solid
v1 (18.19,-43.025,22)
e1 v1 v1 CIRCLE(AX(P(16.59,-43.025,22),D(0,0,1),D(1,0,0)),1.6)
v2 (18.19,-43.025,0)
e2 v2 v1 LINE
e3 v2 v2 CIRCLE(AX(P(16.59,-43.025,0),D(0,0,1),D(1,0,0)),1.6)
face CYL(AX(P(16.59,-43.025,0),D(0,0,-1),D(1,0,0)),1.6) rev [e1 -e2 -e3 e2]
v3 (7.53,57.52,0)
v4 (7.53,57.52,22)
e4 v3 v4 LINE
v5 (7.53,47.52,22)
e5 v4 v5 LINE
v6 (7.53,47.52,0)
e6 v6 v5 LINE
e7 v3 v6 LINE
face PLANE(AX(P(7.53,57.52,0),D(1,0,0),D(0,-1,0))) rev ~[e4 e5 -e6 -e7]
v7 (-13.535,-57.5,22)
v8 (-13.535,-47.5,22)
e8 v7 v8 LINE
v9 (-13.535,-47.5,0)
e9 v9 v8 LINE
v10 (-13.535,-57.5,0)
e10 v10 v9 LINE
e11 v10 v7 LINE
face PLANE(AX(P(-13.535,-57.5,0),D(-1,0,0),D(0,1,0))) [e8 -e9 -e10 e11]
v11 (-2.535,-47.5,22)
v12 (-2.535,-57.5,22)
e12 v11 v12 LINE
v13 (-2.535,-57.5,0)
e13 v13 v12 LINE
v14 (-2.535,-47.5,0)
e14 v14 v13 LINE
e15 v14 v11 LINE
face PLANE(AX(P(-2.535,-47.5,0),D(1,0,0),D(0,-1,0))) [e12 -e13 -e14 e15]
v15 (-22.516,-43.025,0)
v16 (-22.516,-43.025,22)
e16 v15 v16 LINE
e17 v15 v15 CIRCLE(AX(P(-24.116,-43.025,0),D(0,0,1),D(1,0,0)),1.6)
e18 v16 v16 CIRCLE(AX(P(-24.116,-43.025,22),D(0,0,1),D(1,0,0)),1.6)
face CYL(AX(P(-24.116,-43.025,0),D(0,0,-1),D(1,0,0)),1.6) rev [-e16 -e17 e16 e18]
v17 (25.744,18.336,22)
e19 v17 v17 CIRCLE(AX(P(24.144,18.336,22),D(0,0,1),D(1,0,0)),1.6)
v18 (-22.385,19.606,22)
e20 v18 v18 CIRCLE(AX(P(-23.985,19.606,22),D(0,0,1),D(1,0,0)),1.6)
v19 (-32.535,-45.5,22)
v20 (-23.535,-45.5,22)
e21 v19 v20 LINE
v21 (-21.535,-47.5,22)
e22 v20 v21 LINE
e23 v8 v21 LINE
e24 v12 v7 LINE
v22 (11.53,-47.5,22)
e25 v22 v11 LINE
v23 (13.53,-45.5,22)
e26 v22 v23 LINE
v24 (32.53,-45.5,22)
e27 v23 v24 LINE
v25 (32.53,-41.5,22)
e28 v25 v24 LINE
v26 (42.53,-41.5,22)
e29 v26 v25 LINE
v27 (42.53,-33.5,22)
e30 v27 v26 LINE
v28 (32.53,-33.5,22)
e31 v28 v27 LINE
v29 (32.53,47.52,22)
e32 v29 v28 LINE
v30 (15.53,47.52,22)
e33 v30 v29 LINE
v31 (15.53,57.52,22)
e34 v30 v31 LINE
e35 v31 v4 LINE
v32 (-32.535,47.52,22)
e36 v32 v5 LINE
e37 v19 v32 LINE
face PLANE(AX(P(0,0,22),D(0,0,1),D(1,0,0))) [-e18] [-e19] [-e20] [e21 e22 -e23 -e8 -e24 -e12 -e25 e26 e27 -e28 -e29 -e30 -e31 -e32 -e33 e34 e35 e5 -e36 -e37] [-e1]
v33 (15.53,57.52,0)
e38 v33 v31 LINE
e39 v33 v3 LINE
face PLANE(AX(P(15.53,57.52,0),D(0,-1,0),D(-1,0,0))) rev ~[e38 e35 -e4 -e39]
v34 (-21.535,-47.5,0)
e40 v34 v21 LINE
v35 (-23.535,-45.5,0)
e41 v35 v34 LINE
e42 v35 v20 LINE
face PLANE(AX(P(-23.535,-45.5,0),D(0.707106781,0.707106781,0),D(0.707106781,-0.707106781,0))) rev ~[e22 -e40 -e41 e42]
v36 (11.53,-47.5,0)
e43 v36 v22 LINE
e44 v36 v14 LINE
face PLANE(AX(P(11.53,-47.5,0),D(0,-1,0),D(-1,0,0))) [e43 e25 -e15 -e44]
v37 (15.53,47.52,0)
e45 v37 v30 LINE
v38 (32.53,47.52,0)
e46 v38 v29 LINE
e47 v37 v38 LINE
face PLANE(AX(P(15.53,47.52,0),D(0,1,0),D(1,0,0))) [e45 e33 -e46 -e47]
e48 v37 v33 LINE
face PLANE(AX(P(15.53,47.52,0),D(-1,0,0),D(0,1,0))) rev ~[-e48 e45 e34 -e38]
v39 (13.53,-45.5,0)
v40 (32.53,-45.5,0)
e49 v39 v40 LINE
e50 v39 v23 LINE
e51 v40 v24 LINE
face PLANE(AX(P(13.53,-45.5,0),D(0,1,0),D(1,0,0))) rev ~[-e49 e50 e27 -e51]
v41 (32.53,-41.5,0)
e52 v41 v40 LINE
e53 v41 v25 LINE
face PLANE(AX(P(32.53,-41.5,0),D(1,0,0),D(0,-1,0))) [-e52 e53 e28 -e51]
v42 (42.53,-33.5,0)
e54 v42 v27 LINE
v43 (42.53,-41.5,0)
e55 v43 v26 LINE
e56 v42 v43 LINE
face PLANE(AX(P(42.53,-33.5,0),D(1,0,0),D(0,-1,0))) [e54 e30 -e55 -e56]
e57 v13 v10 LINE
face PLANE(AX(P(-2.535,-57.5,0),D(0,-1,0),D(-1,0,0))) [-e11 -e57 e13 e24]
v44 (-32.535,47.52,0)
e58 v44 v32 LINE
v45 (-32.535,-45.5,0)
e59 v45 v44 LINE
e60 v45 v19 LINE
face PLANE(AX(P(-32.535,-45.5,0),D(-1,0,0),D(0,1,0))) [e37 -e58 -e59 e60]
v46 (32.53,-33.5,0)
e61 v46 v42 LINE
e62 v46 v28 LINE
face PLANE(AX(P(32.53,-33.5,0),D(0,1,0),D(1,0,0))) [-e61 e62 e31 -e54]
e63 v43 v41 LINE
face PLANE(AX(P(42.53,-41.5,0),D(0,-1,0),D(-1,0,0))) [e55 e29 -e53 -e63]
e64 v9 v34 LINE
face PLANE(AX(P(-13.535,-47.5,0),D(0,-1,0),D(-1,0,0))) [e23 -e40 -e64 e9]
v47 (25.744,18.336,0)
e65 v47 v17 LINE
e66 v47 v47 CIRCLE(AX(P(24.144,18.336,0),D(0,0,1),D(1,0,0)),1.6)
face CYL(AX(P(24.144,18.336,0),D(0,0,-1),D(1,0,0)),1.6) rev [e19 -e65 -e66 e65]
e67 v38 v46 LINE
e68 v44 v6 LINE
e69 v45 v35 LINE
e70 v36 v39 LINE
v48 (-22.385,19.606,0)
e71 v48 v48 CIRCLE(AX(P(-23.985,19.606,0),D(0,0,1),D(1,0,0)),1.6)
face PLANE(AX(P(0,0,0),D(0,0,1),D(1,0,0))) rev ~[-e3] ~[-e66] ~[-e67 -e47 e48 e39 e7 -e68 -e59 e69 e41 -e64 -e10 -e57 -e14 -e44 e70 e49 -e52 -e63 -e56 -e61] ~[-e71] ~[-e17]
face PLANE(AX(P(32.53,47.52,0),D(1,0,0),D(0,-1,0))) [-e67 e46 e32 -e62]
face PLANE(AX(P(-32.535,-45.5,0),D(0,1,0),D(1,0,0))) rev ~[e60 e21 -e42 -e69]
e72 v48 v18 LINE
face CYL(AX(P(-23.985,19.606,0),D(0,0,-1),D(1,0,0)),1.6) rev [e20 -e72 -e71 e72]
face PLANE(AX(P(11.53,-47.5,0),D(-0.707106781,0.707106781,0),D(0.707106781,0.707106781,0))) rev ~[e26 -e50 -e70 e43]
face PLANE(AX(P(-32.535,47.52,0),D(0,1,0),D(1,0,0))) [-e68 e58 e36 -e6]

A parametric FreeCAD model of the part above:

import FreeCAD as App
import Part
import Sketcher
from FreeCAD import Vector
Q = App.Units.Quantity

doc = App.newDocument("Part")
body = doc.addObject("PartDesign::Body", "Body")

# Sketch on XY plane
sketch1 = body.newObject("Sketcher::SketchObject", "Sketch")
sketch1.AttachmentSupport = (doc.getObject("XY_Plane"), [""])
sketch1.MapMode = "FlatFace"
sketch1.addGeometry([
    Part.LineSegment(Vector(-2.5, -47.5, 0), Vector(11.5, -47.5, 0)),  # 0
    Part.LineSegment(Vector(11.5, -47.5, 0), Vector(13.5, -45.5, 0)),  # 1
    Part.LineSegment(Vector(13.5, -45.5, 0), Vector(32.5, -45.5, 0)),  # 2
    Part.LineSegment(Vector(32.5, -45.5, 0), Vector(32.5, -41.5, 0)),  # 3
    Part.LineSegment(Vector(32.5, -41.5, 0), Vector(42.5, -41.5, 0)),  # 4
    Part.LineSegment(Vector(42.5, -41.5, 0), Vector(42.5, -33.5, 0)),  # 5
    Part.LineSegment(Vector(42.5, -33.5, 0), Vector(32.5, -33.5, 0)),  # 6
    Part.LineSegment(Vector(32.5, -33.5, 0), Vector(32.5, 47.5, 0)),  # 7
    Part.LineSegment(Vector(32.5, 47.5, 0), Vector(15.5, 47.5, 0)),  # 8
    Part.LineSegment(Vector(15.5, 47.5, 0), Vector(15.5, 57.5, 0)),  # 9
    Part.LineSegment(Vector(15.5, 57.5, 0), Vector(7.5, 57.5, 0)),  # 10
    Part.LineSegment(Vector(7.5, 57.5, 0), Vector(7.5, 47.5, 0)),  # 11
    Part.LineSegment(Vector(7.5, 47.5, 0), Vector(-32.5, 47.5, 0)),  # 12
    Part.LineSegment(Vector(-32.5, 47.5, 0), Vector(-32.5, -45.5, 0)),  # 13
    Part.LineSegment(Vector(-32.5, -45.5, 0), Vector(-23.5, -45.5, 0)),  # 14
    Part.LineSegment(Vector(-23.5, -45.5, 0), Vector(-21.5, -47.5, 0)),  # 15
    Part.LineSegment(Vector(-21.5, -47.5, 0), Vector(-13.5, -47.5, 0)),  # 16
    Part.LineSegment(Vector(-13.5, -47.5, 0), Vector(-13.5, -57.5, 0)),  # 17
    Part.LineSegment(Vector(-13.5, -57.5, 0), Vector(-2.5, -57.5, 0)),  # 18
    Part.LineSegment(Vector(-2.5, -57.5, 0), Vector(-2.5, -47.5, 0)),  # 19
    Part.Circle(Vector(-24.1, -43, 0), Vector(0, 0, 1), 1.6),  # 20
    Part.Circle(Vector(16.6, -43, 0), Vector(0, 0, 1), 1.6),  # 21
    Part.Circle(Vector(-24, 19.6, 0), Vector(0, 0, 1), 1.6),  # 22
    Part.Circle(Vector(24.1, 18.3, 0), Vector(0, 0, 1), 1.6),  # 23
], False)
sketch1.addConstraint([
    Sketcher.Constraint("Coincident", 0, 2, 1, 1),
    Sketcher.Constraint("Coincident", 1, 2, 2, 1),
    Sketcher.Constraint("Coincident", 2, 2, 3, 1),
    Sketcher.Constraint("Coincident", 3, 2, 4, 1),
    Sketcher.Constraint("Coincident", 4, 2, 5, 1),
    Sketcher.Constraint("Coincident", 5, 2, 6, 1),
    Sketcher.Constraint("Coincident", 6, 2, 7, 1),
    Sketcher.Constraint("Coincident", 7, 2, 8, 1),
    Sketcher.Constraint("Coincident", 8, 2, 9, 1),
    Sketcher.Constraint("Coincident", 9, 2, 10, 1),
    Sketcher.Constraint("Coincident", 10, 2, 11, 1),
    Sketcher.Constraint("Coincident", 11, 2, 12, 1),
    Sketcher.Constraint("Coincident", 12, 2, 13, 1),
    Sketcher.Constraint("Coincident", 13, 2, 14, 1),
    Sketcher.Constraint("Coincident", 14, 2, 15, 1),
    Sketcher.Constraint("Coincident", 15, 2, 16, 1),
    Sketcher.Constraint("Coincident", 16, 2, 17, 1),
    Sketcher.Constraint("Coincident", 17, 2, 18, 1),
    Sketcher.Constraint("Coincident", 18, 2, 19, 1),
    Sketcher.Constraint("Coincident", 19, 2, 0, 1),
    Sketcher.Constraint("Horizontal", 0),
    Sketcher.Constraint("Horizontal", 2),
    Sketcher.Constraint("Vertical", 3),
    Sketcher.Constraint("Horizontal", 4),
    Sketcher.Constraint("Vertical", 5),
    Sketcher.Constraint("Horizontal", 6),
    Sketcher.Constraint("Vertical", 7),
    Sketcher.Constraint("Horizontal", 8),
    Sketcher.Constraint("Vertical", 9),
    Sketcher.Constraint("Horizontal", 10),
    Sketcher.Constraint("Vertical", 11),
    Sketcher.Constraint("Horizontal", 12),
    Sketcher.Constraint("Vertical", 13),
    Sketcher.Constraint("Horizontal", 14),
    Sketcher.Constraint("Horizontal", 16),
    Sketcher.Constraint("Vertical", 17),
    Sketcher.Constraint("Horizontal", 18),
    Sketcher.Constraint("Vertical", 19),
    Sketcher.Constraint("Equal", 20, 21),
    Sketcher.Constraint("Equal", 21, 22),
    Sketcher.Constraint("Equal", 22, 23),
    Sketcher.Constraint("Perpendicular", 1, 15),
    Sketcher.Constraint("Horizontal", 20, 3, 21, 3),
    Sketcher.Constraint("Horizontal", 8, 2, 11, 2),
    Sketcher.Constraint("Horizontal", 2, 2, 13, 2),
    Sketcher.Constraint("Horizontal", 0, 2, 15, 2),
    Sketcher.Constraint("Vertical", 3, 2, 6, 2),
    Sketcher.Constraint("Equal", 10, 16),
    Sketcher.Constraint("Equal", 16, 5),
    Sketcher.Constraint("Equal", 6, 9),
    Sketcher.Constraint("Equal", 11, 17),
    Sketcher.Constraint("Equal", 1, 15),
    Sketcher.Constraint("Diameter", 20, Q("3.2 mm")),
    Sketcher.Constraint("DistanceX", 2, 1, 2, 2, Q("19 mm")),
    Sketcher.Constraint("DistanceX", 4, 1, 4, 2, Q("10 mm")),
    Sketcher.Constraint("DistanceX", 8, 2, 8, 1, Q("17 mm")),
    Sketcher.Constraint("DistanceX", 10, 2, 10, 1, Q("8 mm")),
    Sketcher.Constraint("DistanceX", 14, 1, 14, 2, Q("9 mm")),
    Sketcher.Constraint("DistanceX", 18, 1, 18, 2, Q("11 mm")),
    Sketcher.Constraint("DistanceY", 3, 1, 3, 2, Q("4 mm")),
    Sketcher.Constraint("DistanceX", 0, 2, 1, 2, Q("2 mm")),
    Sketcher.Constraint("DistanceY", -1, 1, 7, 2, Q("47.52 mm")),
    Sketcher.Constraint("DistanceX", 21, 3, 2, 2, Q("15.94 mm")),
    Sketcher.Constraint("DistanceX", 12, 2, 22, 3, Q("8.55 mm")),
    Sketcher.Constraint("DistanceX", 12, 2, -1, 1, Q("32.535 mm")),
    Sketcher.Constraint("DistanceY", 20, 3, 22, 3, Q("62.631 mm")),
    Sketcher.Constraint("DistanceY", 1, 2, 21, 3, Q("2.475 mm")),
    Sketcher.Constraint("DistanceY", 1, 2, 23, 3, Q("63.836 mm")),
    Sketcher.Constraint("DistanceX", 13, 2, 20, 3, Q("8.419 mm")),
    Sketcher.Constraint("DistanceX", 13, 2, 2, 2, Q("65.065 mm")),
    Sketcher.Constraint("DistanceY", 7, 1, 7, 2, Q("81.02 mm")),
    Sketcher.Constraint("DistanceX", 20, 3, 23, 3, Q("48.26 mm")),
])
pad1 = body.newObject("PartDesign::Pad", "Pad")
pad1.Profile = sketch1
pad1.Length = 22

doc.recompute()
